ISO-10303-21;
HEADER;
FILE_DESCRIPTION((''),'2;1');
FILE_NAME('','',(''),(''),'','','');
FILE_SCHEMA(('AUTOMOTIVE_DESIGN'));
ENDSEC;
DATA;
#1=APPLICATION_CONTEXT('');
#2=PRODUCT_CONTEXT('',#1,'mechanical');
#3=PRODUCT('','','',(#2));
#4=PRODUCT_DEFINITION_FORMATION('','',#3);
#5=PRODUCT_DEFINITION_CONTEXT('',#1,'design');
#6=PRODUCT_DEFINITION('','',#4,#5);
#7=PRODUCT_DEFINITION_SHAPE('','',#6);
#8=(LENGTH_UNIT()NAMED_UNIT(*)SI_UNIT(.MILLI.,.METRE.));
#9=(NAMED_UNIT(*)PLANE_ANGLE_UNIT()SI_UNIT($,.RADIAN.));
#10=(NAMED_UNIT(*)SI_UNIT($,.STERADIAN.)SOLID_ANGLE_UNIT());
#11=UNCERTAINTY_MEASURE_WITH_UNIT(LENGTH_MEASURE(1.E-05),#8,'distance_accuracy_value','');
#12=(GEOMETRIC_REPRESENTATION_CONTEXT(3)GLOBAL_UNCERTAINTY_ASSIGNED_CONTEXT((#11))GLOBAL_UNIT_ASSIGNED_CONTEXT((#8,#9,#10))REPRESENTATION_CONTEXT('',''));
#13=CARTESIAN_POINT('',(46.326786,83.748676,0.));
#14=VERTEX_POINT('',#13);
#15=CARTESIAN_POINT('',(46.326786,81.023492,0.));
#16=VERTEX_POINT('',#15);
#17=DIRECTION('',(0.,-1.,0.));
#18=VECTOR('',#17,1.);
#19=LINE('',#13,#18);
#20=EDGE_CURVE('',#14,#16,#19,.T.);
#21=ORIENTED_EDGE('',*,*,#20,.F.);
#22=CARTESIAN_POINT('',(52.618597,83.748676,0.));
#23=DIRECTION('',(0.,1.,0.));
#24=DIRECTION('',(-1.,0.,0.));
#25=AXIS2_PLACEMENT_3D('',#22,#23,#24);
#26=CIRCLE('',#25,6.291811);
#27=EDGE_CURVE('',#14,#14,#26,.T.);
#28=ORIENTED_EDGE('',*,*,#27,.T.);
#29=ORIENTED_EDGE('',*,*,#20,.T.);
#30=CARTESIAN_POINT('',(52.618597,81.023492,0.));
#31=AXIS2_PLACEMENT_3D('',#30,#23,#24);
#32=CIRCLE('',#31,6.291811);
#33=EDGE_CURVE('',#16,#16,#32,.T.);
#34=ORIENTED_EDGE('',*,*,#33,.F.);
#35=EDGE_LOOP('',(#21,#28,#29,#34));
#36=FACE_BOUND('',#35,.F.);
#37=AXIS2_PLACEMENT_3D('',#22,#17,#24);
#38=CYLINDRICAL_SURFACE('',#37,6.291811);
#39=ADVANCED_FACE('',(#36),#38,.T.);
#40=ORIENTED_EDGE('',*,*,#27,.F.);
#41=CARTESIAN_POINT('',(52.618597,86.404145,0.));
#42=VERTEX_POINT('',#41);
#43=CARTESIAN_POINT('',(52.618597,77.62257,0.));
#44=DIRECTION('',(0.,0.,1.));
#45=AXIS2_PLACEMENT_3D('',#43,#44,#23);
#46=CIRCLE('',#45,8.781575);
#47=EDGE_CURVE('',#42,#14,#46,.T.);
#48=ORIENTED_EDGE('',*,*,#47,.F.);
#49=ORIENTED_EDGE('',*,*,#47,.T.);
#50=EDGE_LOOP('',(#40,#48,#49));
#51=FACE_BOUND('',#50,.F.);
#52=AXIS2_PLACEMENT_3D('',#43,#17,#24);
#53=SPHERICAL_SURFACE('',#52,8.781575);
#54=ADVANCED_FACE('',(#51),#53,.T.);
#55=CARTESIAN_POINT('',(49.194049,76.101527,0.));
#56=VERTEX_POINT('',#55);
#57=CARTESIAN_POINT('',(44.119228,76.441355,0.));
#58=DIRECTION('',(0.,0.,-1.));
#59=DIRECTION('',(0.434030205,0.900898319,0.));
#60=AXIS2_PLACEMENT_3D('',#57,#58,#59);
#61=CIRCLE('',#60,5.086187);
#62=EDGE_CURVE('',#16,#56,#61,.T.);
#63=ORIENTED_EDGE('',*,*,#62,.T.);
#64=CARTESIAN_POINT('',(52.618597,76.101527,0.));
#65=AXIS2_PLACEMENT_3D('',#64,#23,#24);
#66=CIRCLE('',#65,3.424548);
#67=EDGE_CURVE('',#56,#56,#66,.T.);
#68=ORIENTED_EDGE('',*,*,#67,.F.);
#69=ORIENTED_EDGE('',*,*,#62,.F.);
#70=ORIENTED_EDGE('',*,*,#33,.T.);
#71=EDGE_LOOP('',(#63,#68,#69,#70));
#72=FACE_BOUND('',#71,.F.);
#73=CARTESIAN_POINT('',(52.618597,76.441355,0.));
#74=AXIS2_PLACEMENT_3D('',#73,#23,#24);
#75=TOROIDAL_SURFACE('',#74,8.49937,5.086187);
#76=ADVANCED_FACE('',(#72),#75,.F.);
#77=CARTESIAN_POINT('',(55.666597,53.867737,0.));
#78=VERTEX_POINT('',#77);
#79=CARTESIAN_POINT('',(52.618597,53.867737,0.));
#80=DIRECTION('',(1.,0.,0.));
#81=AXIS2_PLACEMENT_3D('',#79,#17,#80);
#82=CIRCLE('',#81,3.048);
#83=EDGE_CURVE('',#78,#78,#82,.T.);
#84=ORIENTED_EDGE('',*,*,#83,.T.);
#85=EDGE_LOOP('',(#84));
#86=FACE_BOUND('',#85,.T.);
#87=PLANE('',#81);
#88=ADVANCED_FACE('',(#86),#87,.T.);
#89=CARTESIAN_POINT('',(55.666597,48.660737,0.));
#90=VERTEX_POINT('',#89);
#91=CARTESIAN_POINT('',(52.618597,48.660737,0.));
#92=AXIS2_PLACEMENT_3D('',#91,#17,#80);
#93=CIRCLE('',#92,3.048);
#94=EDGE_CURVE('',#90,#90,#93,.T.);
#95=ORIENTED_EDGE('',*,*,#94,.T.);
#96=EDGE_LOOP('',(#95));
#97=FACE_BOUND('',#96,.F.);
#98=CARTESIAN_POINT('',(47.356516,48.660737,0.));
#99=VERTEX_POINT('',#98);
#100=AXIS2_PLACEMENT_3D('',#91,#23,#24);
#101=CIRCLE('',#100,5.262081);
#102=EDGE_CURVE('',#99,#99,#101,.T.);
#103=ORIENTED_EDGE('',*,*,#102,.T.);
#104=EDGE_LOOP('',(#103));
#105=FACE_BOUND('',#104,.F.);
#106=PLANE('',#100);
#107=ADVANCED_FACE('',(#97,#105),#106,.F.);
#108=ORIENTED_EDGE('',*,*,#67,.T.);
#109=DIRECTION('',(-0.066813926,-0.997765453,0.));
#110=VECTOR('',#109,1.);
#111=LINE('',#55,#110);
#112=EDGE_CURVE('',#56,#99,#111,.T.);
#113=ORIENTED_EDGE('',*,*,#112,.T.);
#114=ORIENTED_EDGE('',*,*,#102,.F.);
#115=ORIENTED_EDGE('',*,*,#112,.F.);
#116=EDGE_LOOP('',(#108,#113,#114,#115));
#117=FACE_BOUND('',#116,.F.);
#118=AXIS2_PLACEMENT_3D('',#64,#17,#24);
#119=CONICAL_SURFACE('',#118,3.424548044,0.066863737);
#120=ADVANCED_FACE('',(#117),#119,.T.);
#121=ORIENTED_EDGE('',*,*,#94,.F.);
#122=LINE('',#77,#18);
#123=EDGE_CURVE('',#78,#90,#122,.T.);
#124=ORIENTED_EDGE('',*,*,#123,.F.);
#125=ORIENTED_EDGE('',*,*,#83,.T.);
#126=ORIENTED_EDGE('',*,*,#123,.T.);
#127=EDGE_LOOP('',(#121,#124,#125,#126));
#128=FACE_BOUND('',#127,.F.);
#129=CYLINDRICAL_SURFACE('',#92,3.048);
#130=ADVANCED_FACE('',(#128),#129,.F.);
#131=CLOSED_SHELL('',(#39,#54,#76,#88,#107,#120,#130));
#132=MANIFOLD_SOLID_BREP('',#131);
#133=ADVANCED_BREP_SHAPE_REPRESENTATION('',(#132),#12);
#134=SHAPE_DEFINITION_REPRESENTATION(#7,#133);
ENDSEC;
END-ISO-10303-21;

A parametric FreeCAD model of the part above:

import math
import FreeCAD as App
import Part
import Sketcher
from FreeCAD import Vector
Q = App.Units.Quantity

doc = App.newDocument("Part")
body = doc.addObject("PartDesign::Body", "Body")

# Sketch on XY plane
sketch1 = body.newObject("Sketcher::SketchObject", "Sketch")
sketch1.AttachmentSupport = (doc.getObject("XY_Plane"), [""])
sketch1.MapMode = "FlatFace"
sketch1.addGeometry([
    Part.LineSegment(Vector(49.6, 48.7, 0), Vector(49.6, 43.6, 0)),  # 0
    Part.LineSegment(Vector(49.6, 43.6, 0), Vector(52.6, 43.6, 0)),  # 1
    Part.LineSegment(Vector(52.6, 43.6, 0), Vector(52.6, 86.4, 0)),  # 2
    Part.ArcOfCircle(Part.Circle(Vector(52.6, 77.6, 0), Vector(0, 0, 1), 8.8), math.radians(90), math.radians(136)),  # 3
    Part.LineSegment(Vector(46.3, 83.7, 0), Vector(46.3, 81, 0)),  # 4
    Part.ArcOfCircle(Part.Circle(Vector(44.1, 76.4, 0), Vector(0, 0, 1), 5.1), math.radians(-4), math.radians(64)),  # 5
    Part.LineSegment(Vector(49.2, 76.1, 0), Vector(47.4, 48.7, 0)),  # 6
    Part.LineSegment(Vector(47.4, 48.7, 0), Vector(49.6, 48.7, 0)),  # 7
], False)
sketch1.addGeometry(Part.LineSegment(Vector(52.6, 43.6, 0), Vector(52.6, 86.4, 0)), True)  # axis
sketch1.addConstraint([
    Sketcher.Constraint("Coincident", 0, 2, 1, 1),
    Sketcher.Constraint("Coincident", 1, 2, 2, 1),
    Sketcher.Constraint("Coincident", 2, 2, 3, 1),
    Sketcher.Constraint("Coincident", 3, 2, 4, 1),
    Sketcher.Constraint("Coincident", 4, 2, 5, 2),
    Sketcher.Constraint("Tangent", 5, 1, 6, 1),
    Sketcher.Constraint("Coincident", 6, 2, 7, 1),
    Sketcher.Constraint("Coincident", 7, 2, 0, 1),
    Sketcher.Constraint("Vertical", 0),
    Sketcher.Constraint("Vertical", 2),
    Sketcher.Constraint("Vertical", 4),
    Sketcher.Constraint("Horizontal", 7),
    Sketcher.Constraint("Vertical", 8),
    Sketcher.Constraint("Coincident", 8, 1, 1, 2),
    Sketcher.Constraint("Vertical", 3, 3, 1, 2),
    Sketcher.Constraint("Equal", 2, 8),
    Sketcher.Constraint("Angle", 1, Q("-0.5 deg")),
    Sketcher.Constraint("Distance", 1, Q("0.12 in")),
    Sketcher.Constraint("Radius", 3, 8.781575),
    Sketcher.Constraint("Radius", 5, 5.086187),
    Sketcher.Constraint("DistanceX", 7, 1, 7, 2, 2.214197),
    Sketcher.Constraint("DistanceY", 0, 2, 0, 1, 5.054988),
    Sketcher.Constraint("DistanceY", 2, 1, 2, 2, 42.824995),
    Sketcher.Constraint("DistanceY", 4, 2, 4, 1, 2.725184),
    Sketcher.Constraint("DistanceY", -1, 1, 3, 3, 77.62257),
    Sketcher.Constraint("DistanceY", -1, 1, 4, 2, 81.023492),
    Sketcher.Constraint("DistanceX", -1, 1, 5, 1, 49.194049),
    Sketcher.Constraint("DistanceX", 5, 3, 3, 3, 8.49937),
])
revolution = body.newObject("PartDesign::Revolution", "Revolution")
revolution.Profile = sketch1
revolution.ReferenceAxis = (sketch1, ["Axis0"])
revolution.Angle = 360

# Sketch on XZ plane
sketch2 = body.newObject("Sketcher::SketchObject", "Sketch001")
sketch2.AttachmentSupport = (doc.getObject("XZ_Plane"), [""])
sketch2.MapMode = "FlatFace"
sketch2.AttachmentOffset = App.Placement(Vector(0, 0, -48.660737), App.Rotation())
sketch2.addGeometry(Part.Circle(Vector(52.6, 0, 0), Vector(0, 0, 1), 3), False)
sketch2.addConstraint([
    Sketcher.Constraint("PointOnObject", 0, 3, -1),
    Sketcher.Constraint("Diameter", 0, Q("0.24 in")),
    Sketcher.Constraint("DistanceX", -1, 1, 0, 3, 52.618597),
])
pocket1 = body.newObject("PartDesign::Pocket", "Pocket")
pocket1.Profile = sketch2
pocket1.Length = Q("0.41 in")
pocket1.Midplane = True

doc.recompute()
